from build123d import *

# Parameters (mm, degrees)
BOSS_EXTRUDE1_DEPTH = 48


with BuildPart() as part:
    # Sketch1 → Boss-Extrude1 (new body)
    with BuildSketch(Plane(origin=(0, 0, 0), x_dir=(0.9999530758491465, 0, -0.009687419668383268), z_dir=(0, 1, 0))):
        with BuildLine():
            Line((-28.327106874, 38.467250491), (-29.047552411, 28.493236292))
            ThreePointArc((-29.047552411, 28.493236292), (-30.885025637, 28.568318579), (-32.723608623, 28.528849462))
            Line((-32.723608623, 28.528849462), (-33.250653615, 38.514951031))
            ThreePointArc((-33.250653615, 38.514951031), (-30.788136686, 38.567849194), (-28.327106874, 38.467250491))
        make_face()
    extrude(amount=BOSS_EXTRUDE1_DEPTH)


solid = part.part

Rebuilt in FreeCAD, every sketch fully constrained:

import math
import FreeCAD as App
import Part
import Sketcher

doc = App.newDocument("Part")
body = doc.addObject("PartDesign::Body", "Body")

# Sketch on XZ plane
sketch1 = body.newObject("Sketcher::SketchObject", "Sketch")
sketch1.AttachmentSupport = (doc.getObject("XZ_Plane"), [""])
sketch1.MapMode = "FlatFace"
sketch1.addGeometry([
    Part.LineSegment(App.Vector(-29.322215, -28.210503, 0), App.Vector(-28.698426, -38.191029, 0)),
    Part.ArcOfCircle(Part.Circle(App.Vector(-31.16033, 1.254218, 0), App.Vector(0, 0, 1), 39.522), math.radians(-93.571337), math.radians(-86.42862)),
    Part.LineSegment(App.Vector(-33.622204, -38.191031, 0), App.Vector(-32.998444, -28.210503, 0)),
    Part.ArcOfCircle(Part.Circle(App.Vector(-31.16033, 1.254218, 0), App.Vector(0, 0, 1), 29.522), math.radians(-93.569689), math.radians(-86.430311)),
], False)
sketch1.addConstraint([
    Sketcher.Constraint("Coincident", 0, 2, 1, 2),
    Sketcher.Constraint("Coincident", 1, 1, 2, 1),
    Sketcher.Constraint("Coincident", 2, 2, 3, 1),
    Sketcher.Constraint("Coincident", 3, 2, 0, 1),
    Sketcher.Constraint("Coincident", 3, 3, 1, 3),
    Sketcher.Constraint("Distance", 0, 10.0),
    Sketcher.Constraint("Radius", 1, 39.522),
    Sketcher.Constraint("DistanceX", 1, 3, -1, 1, 31.16033),
    Sketcher.Constraint("DistanceY", -1, 1, 1, 3, 1.254218),
    Sketcher.Constraint("DistanceY", 0, 2, -1, 1, 38.191029),
    Sketcher.Constraint("DistanceY", 1, 1, -1, 1, 38.191031),
    Sketcher.Constraint("DistanceX", 1, 1, 2, 2, 0.62376),
    Sketcher.Constraint("DistanceX", 2, 2, 3, 2, 3.676229),
])
pad1 = body.newObject("PartDesign::Pad", "Pad")
pad1.Profile = sketch1
pad1.Length = 48
pad1.Reversed = True

doc.recompute()
